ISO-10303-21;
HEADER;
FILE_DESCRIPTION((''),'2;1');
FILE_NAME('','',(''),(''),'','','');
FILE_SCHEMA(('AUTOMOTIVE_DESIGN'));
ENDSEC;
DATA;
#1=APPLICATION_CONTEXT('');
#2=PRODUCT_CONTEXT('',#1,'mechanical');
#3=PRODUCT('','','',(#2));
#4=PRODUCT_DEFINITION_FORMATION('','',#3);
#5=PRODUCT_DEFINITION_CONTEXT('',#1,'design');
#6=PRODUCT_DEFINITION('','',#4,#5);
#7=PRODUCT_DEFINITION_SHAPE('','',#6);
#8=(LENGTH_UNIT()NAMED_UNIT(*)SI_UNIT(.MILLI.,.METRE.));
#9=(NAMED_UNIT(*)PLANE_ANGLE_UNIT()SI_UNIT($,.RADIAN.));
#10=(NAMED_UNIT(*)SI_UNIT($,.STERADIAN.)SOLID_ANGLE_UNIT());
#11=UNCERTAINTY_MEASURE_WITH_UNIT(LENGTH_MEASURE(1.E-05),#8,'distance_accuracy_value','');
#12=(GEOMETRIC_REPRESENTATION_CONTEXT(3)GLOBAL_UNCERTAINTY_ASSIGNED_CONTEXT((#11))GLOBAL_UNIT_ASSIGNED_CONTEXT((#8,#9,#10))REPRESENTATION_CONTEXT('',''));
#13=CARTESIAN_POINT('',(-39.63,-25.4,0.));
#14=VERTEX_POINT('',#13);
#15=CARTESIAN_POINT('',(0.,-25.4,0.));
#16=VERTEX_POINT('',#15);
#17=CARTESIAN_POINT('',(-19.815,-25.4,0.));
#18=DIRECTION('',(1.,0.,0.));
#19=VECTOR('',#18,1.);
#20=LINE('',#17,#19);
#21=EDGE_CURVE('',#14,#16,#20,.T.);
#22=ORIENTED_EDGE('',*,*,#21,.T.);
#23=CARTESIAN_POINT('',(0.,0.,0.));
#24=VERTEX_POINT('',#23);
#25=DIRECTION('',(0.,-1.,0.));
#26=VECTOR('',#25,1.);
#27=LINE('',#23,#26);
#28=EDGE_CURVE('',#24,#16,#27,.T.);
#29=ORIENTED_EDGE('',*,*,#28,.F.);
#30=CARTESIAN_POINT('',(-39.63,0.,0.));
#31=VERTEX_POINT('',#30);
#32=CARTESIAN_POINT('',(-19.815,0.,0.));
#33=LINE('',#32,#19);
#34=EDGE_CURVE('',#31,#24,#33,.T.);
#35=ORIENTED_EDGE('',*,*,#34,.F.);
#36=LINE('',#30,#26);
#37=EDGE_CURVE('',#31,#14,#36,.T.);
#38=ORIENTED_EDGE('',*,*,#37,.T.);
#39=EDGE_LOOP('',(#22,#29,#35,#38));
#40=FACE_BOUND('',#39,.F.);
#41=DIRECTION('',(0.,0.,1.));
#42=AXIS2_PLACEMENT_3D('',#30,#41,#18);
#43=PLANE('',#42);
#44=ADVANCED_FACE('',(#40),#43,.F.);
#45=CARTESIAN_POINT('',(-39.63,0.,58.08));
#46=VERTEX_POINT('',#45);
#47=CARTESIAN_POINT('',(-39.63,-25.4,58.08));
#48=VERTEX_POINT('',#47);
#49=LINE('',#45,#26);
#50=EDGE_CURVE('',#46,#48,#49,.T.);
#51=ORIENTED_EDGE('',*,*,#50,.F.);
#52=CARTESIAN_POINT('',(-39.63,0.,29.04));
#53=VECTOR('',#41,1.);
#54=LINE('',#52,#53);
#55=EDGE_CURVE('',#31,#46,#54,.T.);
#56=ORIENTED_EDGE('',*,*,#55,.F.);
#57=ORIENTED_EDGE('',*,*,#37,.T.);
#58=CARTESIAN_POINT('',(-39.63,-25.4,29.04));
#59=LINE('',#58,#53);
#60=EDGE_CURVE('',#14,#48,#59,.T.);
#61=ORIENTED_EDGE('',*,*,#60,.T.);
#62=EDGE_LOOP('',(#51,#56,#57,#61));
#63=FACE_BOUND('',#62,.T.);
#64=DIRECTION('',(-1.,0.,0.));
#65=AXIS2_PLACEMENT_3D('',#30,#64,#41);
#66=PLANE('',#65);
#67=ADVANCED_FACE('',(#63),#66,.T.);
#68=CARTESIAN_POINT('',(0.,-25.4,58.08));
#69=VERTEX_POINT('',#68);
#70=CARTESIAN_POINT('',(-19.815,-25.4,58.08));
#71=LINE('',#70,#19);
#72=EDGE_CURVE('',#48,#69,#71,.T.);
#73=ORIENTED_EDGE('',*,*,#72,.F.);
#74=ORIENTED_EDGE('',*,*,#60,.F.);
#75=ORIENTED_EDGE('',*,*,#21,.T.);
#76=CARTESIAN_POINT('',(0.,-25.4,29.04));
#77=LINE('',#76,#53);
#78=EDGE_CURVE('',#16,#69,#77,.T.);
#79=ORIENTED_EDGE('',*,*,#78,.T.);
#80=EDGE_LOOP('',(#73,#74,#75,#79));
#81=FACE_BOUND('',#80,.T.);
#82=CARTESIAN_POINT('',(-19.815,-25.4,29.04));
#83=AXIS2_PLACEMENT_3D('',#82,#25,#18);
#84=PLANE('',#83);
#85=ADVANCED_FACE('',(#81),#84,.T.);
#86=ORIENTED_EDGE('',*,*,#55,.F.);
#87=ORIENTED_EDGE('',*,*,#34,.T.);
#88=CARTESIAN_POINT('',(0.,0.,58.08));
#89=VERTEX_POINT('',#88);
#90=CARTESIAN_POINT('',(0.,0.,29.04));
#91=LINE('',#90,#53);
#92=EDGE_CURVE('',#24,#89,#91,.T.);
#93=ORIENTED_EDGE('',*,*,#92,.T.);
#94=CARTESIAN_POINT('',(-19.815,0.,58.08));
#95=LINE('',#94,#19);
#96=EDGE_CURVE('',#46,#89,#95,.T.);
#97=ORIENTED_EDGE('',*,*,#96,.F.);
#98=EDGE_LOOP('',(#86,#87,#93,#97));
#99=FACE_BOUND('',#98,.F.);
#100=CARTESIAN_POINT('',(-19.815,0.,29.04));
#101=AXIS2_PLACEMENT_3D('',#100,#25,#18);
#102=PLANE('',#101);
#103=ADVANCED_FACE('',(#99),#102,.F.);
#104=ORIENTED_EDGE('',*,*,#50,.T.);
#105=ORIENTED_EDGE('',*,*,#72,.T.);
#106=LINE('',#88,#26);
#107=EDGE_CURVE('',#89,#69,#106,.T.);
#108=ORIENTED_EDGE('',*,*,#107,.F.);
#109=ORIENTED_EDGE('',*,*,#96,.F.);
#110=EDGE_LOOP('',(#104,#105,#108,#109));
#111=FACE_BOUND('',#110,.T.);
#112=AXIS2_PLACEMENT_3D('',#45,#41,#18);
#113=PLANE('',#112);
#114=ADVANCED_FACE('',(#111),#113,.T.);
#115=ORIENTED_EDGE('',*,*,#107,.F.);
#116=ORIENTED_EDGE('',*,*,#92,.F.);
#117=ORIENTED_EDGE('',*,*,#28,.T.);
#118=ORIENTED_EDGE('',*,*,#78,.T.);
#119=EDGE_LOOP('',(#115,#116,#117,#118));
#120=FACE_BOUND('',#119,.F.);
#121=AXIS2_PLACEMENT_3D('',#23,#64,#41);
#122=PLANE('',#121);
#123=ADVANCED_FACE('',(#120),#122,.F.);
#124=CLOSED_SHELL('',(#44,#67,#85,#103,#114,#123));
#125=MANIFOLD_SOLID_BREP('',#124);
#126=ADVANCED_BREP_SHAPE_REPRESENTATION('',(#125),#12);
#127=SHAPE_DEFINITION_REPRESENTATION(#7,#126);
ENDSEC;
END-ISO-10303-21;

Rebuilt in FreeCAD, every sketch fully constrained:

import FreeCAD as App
import Part
import Sketcher
Q = App.Units.Quantity


def add_polygon(sketch, points):
    """Adds a closed chain of lines whose ends are joined by coincident constraints."""
    first, n = sketch.GeometryCount, len(points)
    for a, b in zip(points, points[1:] + points[:1]):
        sketch.addGeometry(Part.LineSegment(App.Vector(*a, 0), App.Vector(*b, 0)), False)
    for i in range(n):
        sketch.addConstraint(Sketcher.Constraint("Coincident", first + i, 2, first + (i + 1) % n, 1))

doc = App.newDocument("Part")
body = doc.addObject("PartDesign::Body", "Body")

# Sketch on XZ plane
sketch1 = body.newObject("Sketcher::SketchObject", "Sketch")
sketch1.AttachmentSupport = (doc.getObject("XZ_Plane"), [""])
sketch1.MapMode = "FlatFace"
add_polygon(sketch1, [(-40, 58), (-40, 0), (0, 0), (0, 58)])  # lines 0-3
sketch1.addConstraint(Sketcher.Constraint("Vertical", 0))
sketch1.addConstraint(Sketcher.Constraint("Horizontal", 1))
sketch1.addConstraint(Sketcher.Constraint("Vertical", 2))
sketch1.addConstraint(Sketcher.Constraint("Horizontal", 3))
sketch1.addConstraint(Sketcher.Constraint("Coincident", 1, 2, -1, 1))
sketch1.addConstraint(Sketcher.Constraint("DistanceX", 1, 1, 1, 2, 39.63))
sketch1.addConstraint(Sketcher.Constraint("DistanceY", 0, 2, 0, 1, 58.08))
pad1 = body.newObject("PartDesign::Pad", "Pad")
pad1.Profile = sketch1
pad1.Length = Q("1 in")
body2 = doc.addObject("PartDesign::Body", "Body001")

# Sketch on XZ plane
sketch2 = body2.newObject("Sketcher::SketchObject", "Sketch001")
sketch2.AttachmentSupport = (doc.getObject("XZ_Plane001"), [""])
sketch2.MapMode = "FlatFace"
add_polygon(sketch2, [(44, -21), (44, -70), (63, -70), (63, -21)])  # lines 0-3
sketch2.addConstraint(Sketcher.Constraint("Vertical", 0))
sketch2.addConstraint(Sketcher.Constraint("Horizontal", 1))
sketch2.addConstraint(Sketcher.Constraint("Vertical", 2))
sketch2.addConstraint(Sketcher.Constraint("Horizontal", 3))
sketch2.addConstraint(Sketcher.Constraint("DistanceX", 1, 1, 1, 2, 18.75))
sketch2.addConstraint(Sketcher.Constraint("DistanceY", 0, 2, 0, 1, 48.957171))
sketch2.addConstraint(Sketcher.Constraint("DistanceX", -1, 1, 0, 2, 44.061452))
sketch2.addConstraint(Sketcher.Constraint("DistanceY", 0, 2, -1, 1, 70.358448))
pad2 = body2.newObject("PartDesign::Pad", "Pad001")
pad2.Profile = sketch2
pad2.Length = Q("1 in")
body2.Visibility = False

doc.recompute()
